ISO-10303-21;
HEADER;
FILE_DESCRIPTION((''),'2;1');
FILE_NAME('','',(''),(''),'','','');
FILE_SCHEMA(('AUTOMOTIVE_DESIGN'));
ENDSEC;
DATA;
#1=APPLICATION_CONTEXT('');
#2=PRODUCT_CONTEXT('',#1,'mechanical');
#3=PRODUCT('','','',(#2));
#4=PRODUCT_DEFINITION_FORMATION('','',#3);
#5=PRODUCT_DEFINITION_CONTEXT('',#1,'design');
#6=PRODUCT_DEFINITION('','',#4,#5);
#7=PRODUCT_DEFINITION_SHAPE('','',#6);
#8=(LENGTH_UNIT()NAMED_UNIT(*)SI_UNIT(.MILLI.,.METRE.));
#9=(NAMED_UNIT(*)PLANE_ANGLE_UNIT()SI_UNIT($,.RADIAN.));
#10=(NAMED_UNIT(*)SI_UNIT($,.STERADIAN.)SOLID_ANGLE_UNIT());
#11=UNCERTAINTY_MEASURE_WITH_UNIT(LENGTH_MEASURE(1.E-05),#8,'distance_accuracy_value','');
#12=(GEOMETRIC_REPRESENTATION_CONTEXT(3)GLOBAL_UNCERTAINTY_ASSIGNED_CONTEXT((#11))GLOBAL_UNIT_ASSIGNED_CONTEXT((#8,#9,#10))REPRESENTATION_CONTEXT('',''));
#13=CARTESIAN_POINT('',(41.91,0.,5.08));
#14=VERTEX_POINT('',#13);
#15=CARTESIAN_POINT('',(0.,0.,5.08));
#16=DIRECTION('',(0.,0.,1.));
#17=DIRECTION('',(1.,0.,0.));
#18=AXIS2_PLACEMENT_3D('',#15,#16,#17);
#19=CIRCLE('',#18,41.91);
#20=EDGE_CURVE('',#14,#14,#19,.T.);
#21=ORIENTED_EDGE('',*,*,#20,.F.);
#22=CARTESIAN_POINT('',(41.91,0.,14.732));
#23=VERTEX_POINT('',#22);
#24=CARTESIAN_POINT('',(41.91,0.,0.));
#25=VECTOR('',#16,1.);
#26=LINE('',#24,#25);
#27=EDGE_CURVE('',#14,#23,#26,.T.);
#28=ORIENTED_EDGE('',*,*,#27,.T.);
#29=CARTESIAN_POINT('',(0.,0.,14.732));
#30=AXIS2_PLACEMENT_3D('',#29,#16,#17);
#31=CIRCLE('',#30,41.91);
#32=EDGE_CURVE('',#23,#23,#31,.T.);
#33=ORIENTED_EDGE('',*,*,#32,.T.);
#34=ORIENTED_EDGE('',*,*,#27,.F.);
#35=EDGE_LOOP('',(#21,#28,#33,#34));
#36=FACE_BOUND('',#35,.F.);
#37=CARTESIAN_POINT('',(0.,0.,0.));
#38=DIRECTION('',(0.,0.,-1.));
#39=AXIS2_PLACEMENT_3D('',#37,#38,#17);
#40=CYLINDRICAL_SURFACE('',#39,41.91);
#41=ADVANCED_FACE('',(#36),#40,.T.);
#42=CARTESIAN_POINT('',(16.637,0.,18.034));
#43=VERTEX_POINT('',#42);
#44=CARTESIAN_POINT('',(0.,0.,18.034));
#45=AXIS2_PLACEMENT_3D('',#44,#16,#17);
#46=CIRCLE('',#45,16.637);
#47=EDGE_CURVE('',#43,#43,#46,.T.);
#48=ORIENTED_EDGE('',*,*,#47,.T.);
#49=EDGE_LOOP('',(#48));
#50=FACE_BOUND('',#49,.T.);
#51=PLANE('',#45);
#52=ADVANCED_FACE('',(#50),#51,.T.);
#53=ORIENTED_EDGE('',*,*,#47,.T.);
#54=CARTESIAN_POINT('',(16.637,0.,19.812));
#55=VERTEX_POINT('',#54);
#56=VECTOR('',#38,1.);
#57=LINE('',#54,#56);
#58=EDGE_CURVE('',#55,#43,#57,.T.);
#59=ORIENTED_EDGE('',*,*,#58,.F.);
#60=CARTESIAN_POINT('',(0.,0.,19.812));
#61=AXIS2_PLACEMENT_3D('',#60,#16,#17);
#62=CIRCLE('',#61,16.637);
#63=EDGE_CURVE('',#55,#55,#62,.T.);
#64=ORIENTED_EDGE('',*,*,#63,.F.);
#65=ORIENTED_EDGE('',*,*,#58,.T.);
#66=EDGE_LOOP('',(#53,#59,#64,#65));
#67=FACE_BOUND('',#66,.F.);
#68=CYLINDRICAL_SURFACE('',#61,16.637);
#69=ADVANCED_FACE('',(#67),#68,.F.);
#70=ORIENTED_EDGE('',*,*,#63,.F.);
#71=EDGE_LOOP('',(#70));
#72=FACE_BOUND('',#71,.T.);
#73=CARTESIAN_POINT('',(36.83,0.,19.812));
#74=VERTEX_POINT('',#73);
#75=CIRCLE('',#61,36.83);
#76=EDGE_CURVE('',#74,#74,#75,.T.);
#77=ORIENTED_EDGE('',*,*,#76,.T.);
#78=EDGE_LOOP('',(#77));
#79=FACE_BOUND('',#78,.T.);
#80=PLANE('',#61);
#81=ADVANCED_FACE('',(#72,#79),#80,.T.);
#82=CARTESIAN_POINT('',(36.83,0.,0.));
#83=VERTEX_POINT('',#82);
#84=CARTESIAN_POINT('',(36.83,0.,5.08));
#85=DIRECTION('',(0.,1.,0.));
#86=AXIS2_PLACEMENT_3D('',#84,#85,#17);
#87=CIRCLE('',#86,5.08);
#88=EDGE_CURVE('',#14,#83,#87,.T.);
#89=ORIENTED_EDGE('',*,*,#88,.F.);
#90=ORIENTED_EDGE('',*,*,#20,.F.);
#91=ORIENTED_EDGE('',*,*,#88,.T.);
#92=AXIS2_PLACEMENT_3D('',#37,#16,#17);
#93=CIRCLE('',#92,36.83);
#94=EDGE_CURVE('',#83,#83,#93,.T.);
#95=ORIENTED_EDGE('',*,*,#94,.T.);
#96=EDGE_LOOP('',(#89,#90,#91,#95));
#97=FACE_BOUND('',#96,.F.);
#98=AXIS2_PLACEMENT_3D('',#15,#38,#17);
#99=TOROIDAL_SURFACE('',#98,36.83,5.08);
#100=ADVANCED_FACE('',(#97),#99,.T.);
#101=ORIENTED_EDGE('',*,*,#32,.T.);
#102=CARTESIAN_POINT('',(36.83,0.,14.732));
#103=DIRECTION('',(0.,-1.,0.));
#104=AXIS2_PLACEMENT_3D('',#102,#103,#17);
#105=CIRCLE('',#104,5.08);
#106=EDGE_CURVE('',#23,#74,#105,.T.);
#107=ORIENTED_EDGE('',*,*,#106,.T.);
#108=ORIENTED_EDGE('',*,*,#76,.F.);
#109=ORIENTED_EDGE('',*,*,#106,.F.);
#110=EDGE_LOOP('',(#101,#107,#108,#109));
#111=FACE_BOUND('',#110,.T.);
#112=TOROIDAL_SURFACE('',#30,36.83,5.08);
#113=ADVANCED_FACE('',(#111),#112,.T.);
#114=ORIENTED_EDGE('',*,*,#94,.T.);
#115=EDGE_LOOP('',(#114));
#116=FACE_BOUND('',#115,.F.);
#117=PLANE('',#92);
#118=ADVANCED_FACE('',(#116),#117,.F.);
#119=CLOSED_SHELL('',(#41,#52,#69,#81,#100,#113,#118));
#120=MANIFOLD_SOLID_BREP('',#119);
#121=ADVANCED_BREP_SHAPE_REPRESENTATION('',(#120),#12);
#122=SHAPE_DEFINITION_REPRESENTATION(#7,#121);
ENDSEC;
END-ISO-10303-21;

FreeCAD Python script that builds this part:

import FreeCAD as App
import Part
import Sketcher
Q = App.Units.Quantity


def edges_at(feature, points):
    """Names of the edges that pass closest to the given points."""
    edges = feature.Shape.Edges
    near = lambda p: min(range(len(edges)), key=lambda i: edges[i].distToShape(Part.Vertex(*p))[0])
    return sorted({f"Edge{near(p) + 1}" for p in points})

doc = App.newDocument("Part")
params = doc.addObject("Spreadsheet::Sheet", "Params")
for row, (alias, value) in enumerate([
    ("sketch1_diameter", "3.3 in"),
    ("pad1_length", "0.78 in"),
    ("sketch2_diameter", "1.31 in"),
    ("pocket1_length", "0.07 in"),
    ("fillet_radius", "0.2 in"),
], start=1):
    params.set(f"A{row}", alias)
    params.set(f"B{row}", "=" + value)
    params.setAlias(f"B{row}", alias)

body = doc.addObject("PartDesign::Body", "Body")

# Sketch on XY plane
sketch1 = body.newObject("Sketcher::SketchObject", "Sketch")
sketch1.AttachmentSupport = (doc.getObject("XY_Plane"), [""])
sketch1.MapMode = "FlatFace"
sketch1.addGeometry(Part.Circle(App.Vector(0, 0, 0), App.Vector(0, 0, 1), 42), False)
sketch1.addConstraint([
    Sketcher.Constraint("Coincident", 0, 3, -1, 1),
    Sketcher.Constraint("Diameter", 0, Q("3.3 in")),
])
sketch1.setExpression("Constraints[1]", "Params.sketch1_diameter")
pad1 = body.newObject("PartDesign::Pad", "Pad")
pad1.Profile = sketch1
pad1.setExpression("Length", "Params.pad1_length")

# Sketch on XY plane
sketch2 = body.newObject("Sketcher::SketchObject", "Sketch001")
sketch2.AttachmentSupport = (doc.getObject("XY_Plane"), [""])
sketch2.MapMode = "FlatFace"
sketch2.AttachmentOffset = App.Placement(App.Vector(0, 0, 0.78 * 25.4), App.Rotation())
sketch2.addGeometry(Part.Circle(App.Vector(0, 0, 0), App.Vector(0, 0, 1), 17), False)
sketch2.addConstraint([
    Sketcher.Constraint("Coincident", 0, 3, -1, 1),
    Sketcher.Constraint("Diameter", 0, Q("1.31 in")),
])
sketch2.setExpression("Constraints[1]", "Params.sketch2_diameter")
pocket1 = body.newObject("PartDesign::Pocket", "Pocket")
pocket1.Profile = sketch2
pocket1.setExpression("Length", "Params.pocket1_length")
doc.recompute()

fillet = body.newObject("PartDesign::Fillet", "Fillet")
fillet.Base = (pocket1, edges_at(pocket1, [(-41.91, 0, 0), (-41.91, 0, 19.812)]))
fillet.setExpression("Radius", "Params.fillet_radius")

doc.recompute()
